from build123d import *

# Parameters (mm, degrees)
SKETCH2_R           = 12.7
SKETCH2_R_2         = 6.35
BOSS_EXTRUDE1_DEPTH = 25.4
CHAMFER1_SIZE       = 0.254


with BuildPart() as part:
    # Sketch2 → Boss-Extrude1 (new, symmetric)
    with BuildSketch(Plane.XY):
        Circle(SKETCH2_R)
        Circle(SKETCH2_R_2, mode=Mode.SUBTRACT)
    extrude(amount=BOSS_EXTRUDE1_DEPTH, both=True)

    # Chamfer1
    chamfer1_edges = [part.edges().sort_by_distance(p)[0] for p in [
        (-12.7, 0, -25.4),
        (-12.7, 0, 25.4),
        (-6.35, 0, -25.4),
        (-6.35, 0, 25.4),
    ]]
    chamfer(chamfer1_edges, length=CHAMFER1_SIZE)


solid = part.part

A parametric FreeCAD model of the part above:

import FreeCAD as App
import Part
import Sketcher

V = App.Vector
Q = App.Units.Quantity


def edges_at(feature, points):
    """Names of the edges that pass closest to the given points."""
    edges = feature.Shape.Edges
    near = lambda p: min(range(len(edges)), key=lambda i: edges[i].distToShape(Part.Vertex(*p))[0])
    return sorted({f"Edge{near(p) + 1}" for p in points})

doc = App.newDocument("Part")
body = doc.addObject("PartDesign::Body", "Body")

# Sketch on XY plane
sketch1 = body.newObject("Sketcher::SketchObject", "Sketch")
sketch1.AttachmentSupport = (doc.getObject("XY_Plane"), [""])
sketch1.MapMode = "FlatFace"
sketch1.addGeometry([
    Part.Circle(V(0, 0, 0), V(0, 0, 1), 13),
    Part.Circle(V(0, 0, 0), V(0, 0, 1), 6),
], False)
sketch1.addConstraint([
    Sketcher.Constraint("Coincident", 0, 3, -1, 1),
    Sketcher.Constraint("Coincident", 1, 3, -1, 1),
    Sketcher.Constraint("Diameter", 0, Q("1 in")),
    Sketcher.Constraint("Diameter", 1, Q("0.5 in")),
])
pad1 = body.newObject("PartDesign::Pad", "Pad")
pad1.Profile = sketch1
pad1.Length = Q("2 in")
pad1.Midplane = True
doc.recompute()

chamfer = body.newObject("PartDesign::Chamfer", "Chamfer")
chamfer.Base = (pad1, edges_at(pad1, [
    (-12.7, 0, -25.4),
    (-12.7, 0, 25.4),
    (-6.35, 0, -25.4),
    (-6.35, 0, 25.4),
]))
chamfer.Size = Q("0.01 in")

doc.recompute()
